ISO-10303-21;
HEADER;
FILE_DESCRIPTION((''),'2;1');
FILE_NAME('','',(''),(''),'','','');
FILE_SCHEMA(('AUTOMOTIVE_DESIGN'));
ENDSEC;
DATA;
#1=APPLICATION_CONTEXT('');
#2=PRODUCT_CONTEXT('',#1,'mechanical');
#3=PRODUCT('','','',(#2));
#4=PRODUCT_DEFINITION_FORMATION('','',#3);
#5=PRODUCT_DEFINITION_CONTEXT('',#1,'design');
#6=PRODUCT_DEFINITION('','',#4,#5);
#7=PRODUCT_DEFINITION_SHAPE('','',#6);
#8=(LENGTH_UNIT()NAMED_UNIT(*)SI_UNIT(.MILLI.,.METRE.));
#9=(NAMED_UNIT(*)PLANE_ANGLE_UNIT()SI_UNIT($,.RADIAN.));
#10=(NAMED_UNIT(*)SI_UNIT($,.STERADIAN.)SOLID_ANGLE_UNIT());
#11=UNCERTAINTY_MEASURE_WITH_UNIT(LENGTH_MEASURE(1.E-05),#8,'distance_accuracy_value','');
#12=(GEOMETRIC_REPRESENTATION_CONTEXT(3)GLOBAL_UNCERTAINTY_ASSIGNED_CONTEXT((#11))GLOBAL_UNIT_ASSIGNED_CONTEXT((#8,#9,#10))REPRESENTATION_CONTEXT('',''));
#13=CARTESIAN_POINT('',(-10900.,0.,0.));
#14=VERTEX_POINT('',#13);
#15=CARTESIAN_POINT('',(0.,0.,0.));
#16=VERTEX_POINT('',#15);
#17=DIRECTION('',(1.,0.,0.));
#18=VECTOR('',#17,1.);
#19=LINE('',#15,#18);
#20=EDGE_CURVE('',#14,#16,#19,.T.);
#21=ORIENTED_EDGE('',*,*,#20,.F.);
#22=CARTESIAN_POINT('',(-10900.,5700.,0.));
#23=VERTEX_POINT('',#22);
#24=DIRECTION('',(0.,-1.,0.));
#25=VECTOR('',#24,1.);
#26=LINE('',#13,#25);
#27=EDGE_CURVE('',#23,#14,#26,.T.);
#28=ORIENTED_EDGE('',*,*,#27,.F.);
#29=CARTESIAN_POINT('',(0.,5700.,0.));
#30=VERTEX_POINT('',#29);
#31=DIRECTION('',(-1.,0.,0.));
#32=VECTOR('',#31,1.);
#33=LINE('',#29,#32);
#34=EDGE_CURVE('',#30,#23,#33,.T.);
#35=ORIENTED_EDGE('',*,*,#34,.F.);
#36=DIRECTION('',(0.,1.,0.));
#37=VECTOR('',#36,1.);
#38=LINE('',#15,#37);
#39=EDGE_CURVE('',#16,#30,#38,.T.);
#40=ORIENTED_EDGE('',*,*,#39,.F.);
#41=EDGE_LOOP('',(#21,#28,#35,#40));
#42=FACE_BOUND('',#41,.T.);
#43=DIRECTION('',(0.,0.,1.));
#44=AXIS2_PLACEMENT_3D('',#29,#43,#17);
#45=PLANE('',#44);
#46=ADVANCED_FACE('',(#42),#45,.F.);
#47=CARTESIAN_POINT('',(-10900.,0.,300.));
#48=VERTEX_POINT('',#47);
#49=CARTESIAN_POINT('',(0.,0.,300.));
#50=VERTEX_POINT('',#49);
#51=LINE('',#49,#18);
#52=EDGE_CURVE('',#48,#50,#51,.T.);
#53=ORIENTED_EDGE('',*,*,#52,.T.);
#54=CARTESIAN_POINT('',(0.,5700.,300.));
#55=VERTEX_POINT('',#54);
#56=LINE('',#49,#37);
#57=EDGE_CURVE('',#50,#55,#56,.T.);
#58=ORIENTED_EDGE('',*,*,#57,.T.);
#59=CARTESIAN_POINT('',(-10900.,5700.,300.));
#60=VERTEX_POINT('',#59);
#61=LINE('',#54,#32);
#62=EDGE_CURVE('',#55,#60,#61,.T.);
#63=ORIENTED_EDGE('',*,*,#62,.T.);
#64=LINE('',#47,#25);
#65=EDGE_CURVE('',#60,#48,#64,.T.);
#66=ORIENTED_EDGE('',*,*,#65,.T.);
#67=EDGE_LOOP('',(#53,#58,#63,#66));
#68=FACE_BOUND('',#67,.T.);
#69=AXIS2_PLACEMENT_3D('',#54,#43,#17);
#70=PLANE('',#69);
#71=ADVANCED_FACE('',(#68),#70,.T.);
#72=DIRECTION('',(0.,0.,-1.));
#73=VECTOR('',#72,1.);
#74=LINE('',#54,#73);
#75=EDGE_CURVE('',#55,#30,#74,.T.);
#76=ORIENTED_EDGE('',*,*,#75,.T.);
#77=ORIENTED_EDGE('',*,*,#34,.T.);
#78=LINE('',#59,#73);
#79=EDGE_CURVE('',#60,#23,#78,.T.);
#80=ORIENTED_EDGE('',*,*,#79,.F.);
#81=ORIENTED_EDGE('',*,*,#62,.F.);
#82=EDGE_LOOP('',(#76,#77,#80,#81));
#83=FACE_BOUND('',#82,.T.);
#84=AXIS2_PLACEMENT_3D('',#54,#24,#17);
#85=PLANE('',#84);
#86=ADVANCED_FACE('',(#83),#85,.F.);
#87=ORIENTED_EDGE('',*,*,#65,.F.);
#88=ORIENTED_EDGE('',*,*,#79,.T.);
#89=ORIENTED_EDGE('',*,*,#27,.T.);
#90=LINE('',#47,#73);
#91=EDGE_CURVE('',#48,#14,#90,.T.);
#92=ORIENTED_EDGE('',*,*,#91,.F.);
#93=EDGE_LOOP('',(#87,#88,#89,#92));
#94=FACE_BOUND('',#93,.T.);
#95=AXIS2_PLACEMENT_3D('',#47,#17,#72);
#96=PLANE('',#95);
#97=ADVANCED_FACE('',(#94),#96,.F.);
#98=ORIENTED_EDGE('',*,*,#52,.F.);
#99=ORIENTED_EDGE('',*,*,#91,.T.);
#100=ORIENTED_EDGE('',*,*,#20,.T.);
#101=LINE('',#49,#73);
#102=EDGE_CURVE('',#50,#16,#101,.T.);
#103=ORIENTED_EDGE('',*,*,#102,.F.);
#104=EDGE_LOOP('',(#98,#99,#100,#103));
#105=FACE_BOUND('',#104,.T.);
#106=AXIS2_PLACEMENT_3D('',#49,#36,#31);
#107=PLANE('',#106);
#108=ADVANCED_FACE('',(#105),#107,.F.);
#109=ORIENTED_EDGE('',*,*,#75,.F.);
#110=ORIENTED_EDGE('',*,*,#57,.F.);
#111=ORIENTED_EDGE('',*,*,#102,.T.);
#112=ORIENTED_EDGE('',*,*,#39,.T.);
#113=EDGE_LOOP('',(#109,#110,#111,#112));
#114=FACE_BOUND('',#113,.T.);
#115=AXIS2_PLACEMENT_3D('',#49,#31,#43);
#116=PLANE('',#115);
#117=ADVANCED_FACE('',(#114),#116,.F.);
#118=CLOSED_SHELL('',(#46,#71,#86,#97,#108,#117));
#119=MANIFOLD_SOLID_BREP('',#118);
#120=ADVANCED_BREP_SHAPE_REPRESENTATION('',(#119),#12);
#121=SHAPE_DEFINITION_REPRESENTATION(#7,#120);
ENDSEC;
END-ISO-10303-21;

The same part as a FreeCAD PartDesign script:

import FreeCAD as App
import Part
import Sketcher
from FreeCAD import Vector
Q = App.Units.Quantity


def add_polygon(sketch, points):
    """Adds a closed chain of lines whose ends are joined by coincident constraints."""
    first, n = sketch.GeometryCount, len(points)
    for a, b in zip(points, points[1:] + points[:1]):
        sketch.addGeometry(Part.LineSegment(App.Vector(*a, 0), App.Vector(*b, 0)), False)
    for i in range(n):
        sketch.addConstraint(Sketcher.Constraint("Coincident", first + i, 2, first + (i + 1) % n, 1))

doc = App.newDocument("Part")
body = doc.addObject("PartDesign::Body", "Body")

# Sketch on XY plane
sketch1 = doc.addObject("Sketcher::SketchObject", "Sketch")
body.addObject(sketch1)
sketch1.AttachmentSupport = (doc.XY_Plane, [""])
sketch1.MapMode = "FlatFace"
add_polygon(sketch1, [(-10900, 5700), (-10900, 0), (0, 0), (0, 5700)])  # lines 0-3
sketch1.addConstraint(Sketcher.Constraint("Vertical", 0))
sketch1.addConstraint(Sketcher.Constraint("Horizontal", 1))
sketch1.addConstraint(Sketcher.Constraint("Vertical", 2))
sketch1.addConstraint(Sketcher.Constraint("Horizontal", 3))
sketch1.addConstraint(Sketcher.Constraint("Coincident", 1, 2, -1, 1))
sketch1.addConstraint(Sketcher.Constraint("DistanceX", 1, 1, 1, 2, Q("10900 mm")))
sketch1.addConstraint(Sketcher.Constraint("DistanceY", 0, 2, 0, 1, Q("5700 mm")))
pad1 = doc.addObject("PartDesign::Pad", "Pad")
body.addObject(pad1)
pad1.Profile = sketch1
pad1.Length = 300

doc.recompute()
